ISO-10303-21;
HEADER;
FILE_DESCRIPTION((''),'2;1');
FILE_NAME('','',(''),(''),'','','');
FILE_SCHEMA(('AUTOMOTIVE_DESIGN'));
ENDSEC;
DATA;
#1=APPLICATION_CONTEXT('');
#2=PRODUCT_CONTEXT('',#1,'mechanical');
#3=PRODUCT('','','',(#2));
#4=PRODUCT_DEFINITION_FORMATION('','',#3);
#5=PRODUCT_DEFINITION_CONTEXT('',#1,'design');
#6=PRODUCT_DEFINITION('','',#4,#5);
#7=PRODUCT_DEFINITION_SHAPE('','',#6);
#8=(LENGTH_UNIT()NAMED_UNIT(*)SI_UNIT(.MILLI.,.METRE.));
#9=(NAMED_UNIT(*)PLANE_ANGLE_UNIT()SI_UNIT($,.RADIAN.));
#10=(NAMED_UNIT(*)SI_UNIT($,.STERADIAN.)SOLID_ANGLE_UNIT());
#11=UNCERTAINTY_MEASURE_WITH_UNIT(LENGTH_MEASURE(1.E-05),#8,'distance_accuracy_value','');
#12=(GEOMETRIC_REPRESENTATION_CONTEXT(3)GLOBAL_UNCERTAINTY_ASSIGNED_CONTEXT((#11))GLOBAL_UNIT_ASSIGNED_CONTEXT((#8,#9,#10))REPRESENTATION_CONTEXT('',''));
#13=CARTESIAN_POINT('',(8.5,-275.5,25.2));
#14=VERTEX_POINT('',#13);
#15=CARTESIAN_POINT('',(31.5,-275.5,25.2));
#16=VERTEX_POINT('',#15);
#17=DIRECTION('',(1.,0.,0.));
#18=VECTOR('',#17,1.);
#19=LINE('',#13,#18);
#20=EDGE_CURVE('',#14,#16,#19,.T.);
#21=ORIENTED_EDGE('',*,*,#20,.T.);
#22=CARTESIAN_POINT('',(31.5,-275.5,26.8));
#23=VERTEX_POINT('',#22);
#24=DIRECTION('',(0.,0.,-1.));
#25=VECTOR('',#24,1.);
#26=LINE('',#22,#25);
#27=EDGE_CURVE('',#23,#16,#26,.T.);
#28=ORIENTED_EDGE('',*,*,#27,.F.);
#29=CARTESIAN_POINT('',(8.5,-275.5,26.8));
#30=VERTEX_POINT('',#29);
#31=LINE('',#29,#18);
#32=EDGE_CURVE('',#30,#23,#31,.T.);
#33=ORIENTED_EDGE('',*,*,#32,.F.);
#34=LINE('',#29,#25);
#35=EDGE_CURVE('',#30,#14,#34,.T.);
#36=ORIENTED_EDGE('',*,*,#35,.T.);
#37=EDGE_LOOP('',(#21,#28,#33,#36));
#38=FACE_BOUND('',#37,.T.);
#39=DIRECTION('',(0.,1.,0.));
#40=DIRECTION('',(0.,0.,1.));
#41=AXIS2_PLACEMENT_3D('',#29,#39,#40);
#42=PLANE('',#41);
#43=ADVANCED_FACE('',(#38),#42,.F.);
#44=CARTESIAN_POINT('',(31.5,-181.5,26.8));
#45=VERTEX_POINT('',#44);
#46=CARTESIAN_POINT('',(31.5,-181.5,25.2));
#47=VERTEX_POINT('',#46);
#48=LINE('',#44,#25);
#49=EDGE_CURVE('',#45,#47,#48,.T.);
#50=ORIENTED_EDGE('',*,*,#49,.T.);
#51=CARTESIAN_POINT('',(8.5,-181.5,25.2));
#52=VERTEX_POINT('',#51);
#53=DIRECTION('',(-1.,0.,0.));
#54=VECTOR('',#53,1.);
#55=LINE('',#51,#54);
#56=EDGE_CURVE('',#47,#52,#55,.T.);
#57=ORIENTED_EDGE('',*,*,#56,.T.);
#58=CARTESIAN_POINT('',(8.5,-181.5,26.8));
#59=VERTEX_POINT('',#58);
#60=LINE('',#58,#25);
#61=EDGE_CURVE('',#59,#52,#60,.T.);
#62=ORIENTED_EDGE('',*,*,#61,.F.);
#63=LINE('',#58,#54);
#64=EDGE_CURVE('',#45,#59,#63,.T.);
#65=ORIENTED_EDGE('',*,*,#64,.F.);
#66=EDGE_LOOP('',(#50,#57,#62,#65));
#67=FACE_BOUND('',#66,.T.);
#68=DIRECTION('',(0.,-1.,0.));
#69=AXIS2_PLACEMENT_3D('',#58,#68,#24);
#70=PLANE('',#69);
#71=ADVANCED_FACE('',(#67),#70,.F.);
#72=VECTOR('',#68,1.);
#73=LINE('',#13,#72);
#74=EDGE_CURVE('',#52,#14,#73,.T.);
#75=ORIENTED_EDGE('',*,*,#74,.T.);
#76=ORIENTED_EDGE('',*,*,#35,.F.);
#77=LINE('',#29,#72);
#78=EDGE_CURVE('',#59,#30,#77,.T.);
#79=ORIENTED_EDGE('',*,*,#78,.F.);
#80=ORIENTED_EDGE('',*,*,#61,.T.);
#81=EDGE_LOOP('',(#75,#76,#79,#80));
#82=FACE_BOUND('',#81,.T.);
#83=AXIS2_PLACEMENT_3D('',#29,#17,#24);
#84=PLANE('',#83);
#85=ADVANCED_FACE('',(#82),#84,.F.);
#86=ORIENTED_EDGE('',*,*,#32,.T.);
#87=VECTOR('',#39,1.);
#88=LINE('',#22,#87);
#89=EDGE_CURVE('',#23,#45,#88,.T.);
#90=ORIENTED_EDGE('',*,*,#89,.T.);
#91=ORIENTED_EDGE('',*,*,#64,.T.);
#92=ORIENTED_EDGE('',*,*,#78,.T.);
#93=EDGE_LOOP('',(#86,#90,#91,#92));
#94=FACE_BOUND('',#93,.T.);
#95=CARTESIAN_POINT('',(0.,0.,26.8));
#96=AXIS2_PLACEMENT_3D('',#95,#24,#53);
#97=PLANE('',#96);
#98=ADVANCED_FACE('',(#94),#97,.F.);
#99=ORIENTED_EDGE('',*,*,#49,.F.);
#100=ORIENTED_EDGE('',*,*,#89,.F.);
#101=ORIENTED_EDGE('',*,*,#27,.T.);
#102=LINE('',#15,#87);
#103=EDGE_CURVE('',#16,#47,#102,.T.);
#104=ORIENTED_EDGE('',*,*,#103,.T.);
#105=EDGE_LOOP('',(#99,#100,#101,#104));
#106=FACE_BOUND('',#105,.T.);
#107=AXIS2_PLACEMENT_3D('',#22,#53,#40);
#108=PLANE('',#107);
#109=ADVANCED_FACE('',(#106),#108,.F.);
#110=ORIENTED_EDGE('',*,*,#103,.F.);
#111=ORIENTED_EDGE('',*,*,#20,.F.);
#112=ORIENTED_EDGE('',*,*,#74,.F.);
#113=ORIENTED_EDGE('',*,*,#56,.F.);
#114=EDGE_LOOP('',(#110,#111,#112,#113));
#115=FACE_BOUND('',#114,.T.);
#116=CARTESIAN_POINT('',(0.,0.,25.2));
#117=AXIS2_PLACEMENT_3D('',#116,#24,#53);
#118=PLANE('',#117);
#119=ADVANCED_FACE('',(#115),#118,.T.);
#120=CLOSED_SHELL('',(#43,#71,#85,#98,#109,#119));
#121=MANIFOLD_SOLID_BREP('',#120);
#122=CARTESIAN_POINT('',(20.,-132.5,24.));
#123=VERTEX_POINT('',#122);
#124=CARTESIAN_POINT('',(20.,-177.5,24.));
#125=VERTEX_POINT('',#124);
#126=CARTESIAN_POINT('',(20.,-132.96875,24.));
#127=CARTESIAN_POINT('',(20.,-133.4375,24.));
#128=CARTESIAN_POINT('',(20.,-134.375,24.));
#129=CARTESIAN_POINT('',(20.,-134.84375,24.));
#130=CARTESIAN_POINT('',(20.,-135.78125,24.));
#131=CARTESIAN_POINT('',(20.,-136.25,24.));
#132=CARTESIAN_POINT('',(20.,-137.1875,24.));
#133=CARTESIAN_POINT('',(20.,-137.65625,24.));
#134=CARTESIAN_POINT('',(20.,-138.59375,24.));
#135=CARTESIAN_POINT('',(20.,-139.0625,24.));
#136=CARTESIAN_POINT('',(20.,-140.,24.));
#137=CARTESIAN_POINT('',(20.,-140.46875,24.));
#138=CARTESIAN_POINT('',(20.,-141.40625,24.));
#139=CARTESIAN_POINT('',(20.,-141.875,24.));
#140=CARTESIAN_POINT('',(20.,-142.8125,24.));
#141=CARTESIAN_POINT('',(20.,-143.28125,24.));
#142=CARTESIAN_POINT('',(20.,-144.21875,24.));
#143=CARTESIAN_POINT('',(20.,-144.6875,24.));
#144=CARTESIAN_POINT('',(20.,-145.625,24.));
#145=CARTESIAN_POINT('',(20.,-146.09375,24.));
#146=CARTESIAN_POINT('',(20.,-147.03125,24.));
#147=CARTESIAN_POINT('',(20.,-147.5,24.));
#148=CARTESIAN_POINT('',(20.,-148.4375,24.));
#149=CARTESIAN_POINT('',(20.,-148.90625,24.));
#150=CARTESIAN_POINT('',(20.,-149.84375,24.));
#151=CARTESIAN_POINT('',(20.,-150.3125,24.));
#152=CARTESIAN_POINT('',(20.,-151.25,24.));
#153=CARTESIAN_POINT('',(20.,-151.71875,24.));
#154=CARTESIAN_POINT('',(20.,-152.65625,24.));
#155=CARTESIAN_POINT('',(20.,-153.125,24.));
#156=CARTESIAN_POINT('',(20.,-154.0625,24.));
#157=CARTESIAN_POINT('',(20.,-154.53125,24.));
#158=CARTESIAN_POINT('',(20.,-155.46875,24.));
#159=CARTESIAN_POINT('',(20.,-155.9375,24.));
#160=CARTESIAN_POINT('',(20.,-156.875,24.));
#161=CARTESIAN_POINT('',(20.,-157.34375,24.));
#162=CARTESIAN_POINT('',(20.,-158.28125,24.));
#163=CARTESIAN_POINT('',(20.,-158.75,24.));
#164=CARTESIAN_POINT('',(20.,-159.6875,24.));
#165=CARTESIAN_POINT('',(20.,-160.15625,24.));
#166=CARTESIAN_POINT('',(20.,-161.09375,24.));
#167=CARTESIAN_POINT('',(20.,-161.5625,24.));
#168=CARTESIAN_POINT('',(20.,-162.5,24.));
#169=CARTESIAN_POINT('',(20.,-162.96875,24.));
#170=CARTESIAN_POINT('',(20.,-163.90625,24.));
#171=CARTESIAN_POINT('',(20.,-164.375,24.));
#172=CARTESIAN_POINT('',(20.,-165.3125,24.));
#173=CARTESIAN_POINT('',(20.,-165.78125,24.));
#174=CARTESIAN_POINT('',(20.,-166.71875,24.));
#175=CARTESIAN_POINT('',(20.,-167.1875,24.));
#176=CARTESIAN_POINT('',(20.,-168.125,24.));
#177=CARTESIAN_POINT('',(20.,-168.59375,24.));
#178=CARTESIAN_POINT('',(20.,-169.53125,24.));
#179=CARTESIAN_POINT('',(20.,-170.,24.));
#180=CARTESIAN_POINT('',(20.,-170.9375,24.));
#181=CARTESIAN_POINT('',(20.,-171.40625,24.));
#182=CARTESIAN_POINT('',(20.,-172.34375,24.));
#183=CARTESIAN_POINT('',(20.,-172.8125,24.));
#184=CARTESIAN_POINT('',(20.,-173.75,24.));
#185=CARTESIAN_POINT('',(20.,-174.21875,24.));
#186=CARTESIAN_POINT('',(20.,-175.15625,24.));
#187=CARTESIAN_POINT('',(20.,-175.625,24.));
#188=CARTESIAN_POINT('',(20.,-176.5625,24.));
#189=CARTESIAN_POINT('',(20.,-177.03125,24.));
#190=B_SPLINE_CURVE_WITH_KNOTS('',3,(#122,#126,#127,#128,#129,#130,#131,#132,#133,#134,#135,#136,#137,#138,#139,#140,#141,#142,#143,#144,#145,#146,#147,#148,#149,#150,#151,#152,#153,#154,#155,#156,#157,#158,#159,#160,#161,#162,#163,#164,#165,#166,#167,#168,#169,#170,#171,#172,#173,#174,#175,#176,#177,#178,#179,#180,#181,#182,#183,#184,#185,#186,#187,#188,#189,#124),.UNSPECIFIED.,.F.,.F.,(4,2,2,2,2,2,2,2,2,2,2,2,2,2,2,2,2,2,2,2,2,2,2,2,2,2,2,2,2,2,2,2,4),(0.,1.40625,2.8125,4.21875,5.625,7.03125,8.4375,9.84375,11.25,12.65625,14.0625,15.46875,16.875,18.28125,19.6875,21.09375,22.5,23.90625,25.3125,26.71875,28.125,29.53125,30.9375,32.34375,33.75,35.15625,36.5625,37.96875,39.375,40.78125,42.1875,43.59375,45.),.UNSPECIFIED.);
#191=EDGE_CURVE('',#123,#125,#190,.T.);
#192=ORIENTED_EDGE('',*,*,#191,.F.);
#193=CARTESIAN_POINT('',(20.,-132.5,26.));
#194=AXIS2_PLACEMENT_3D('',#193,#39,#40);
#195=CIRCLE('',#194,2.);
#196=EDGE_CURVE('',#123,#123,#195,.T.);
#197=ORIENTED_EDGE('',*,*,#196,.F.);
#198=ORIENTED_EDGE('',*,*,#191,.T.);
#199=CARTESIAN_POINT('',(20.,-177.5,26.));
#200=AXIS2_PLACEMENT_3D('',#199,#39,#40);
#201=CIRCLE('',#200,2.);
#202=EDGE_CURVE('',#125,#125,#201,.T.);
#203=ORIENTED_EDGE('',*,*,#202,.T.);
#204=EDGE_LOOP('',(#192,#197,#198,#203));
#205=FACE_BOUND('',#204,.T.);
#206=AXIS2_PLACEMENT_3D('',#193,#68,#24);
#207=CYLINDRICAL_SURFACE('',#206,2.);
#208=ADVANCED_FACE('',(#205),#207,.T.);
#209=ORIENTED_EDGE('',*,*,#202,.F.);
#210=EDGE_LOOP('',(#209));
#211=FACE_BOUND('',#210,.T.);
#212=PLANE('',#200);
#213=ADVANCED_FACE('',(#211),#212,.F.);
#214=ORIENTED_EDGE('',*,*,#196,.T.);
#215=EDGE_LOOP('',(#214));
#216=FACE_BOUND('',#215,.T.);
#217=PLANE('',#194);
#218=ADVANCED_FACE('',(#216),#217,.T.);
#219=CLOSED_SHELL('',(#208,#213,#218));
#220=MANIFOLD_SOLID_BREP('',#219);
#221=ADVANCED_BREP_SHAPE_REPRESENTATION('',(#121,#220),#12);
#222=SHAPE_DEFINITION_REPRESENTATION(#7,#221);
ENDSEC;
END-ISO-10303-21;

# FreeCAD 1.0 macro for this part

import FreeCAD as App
import Part
import Sketcher
from FreeCAD import Vector

doc = App.newDocument("Part")
body = doc.addObject("PartDesign::Body", "Body")

# Sketch on XY plane
sketch1 = body.newObject("Sketcher::SketchObject", "Sketch")
sketch1.AttachmentSupport = (doc.getObject("XY_Plane"), [""])
sketch1.MapMode = "FlatFace"
sketch1.AttachmentOffset = App.Placement(Vector(0, 0, 25.2), App.Rotation())
sketch1.addGeometry([
    Part.LineSegment(Vector(8, -182, 0), Vector(8, -276, 0)),
    Part.LineSegment(Vector(8, -276, 0), Vector(32, -276, 0)),
    Part.LineSegment(Vector(32, -276, 0), Vector(32, -182, 0)),
    Part.LineSegment(Vector(32, -182, 0), Vector(8, -182, 0)),
], False)
sketch1.addConstraint([
    Sketcher.Constraint("Coincident", 0, 2, 1, 1),
    Sketcher.Constraint("Coincident", 1, 2, 2, 1),
    Sketcher.Constraint("Coincident", 2, 2, 3, 1),
    Sketcher.Constraint("Coincident", 3, 2, 0, 1),
    Sketcher.Constraint("Vertical", 0),
    Sketcher.Constraint("Horizontal", 1),
    Sketcher.Constraint("Vertical", 2),
    Sketcher.Constraint("Horizontal", 3),
    Sketcher.Constraint("DistanceX", 1, 1, 1, 2, 23.0),
    Sketcher.Constraint("DistanceY", 0, 2, 0, 1, 94.0),
    Sketcher.Constraint("DistanceX", -1, 1, 0, 2, 8.5),
    Sketcher.Constraint("DistanceY", 0, 2, -1, 1, 275.5),
])
pad1 = body.newObject("PartDesign::Pad", "Pad")
pad1.Profile = sketch1
pad1.Length = 1.6
body2 = doc.addObject("PartDesign::Body", "Body001")

# Sketch on XZ plane
sketch2 = body2.newObject("Sketcher::SketchObject", "Sketch001")
sketch2.AttachmentSupport = (doc.getObject("XZ_Plane001"), [""])
sketch2.MapMode = "FlatFace"
sketch2.AttachmentOffset = App.Placement(Vector(0, 0, 177.5), App.Rotation())
sketch2.addGeometry(Part.Circle(Vector(20, 26, 0), Vector(0, 0, 1), 2), False)
sketch2.addConstraint([
    Sketcher.Constraint("Diameter", 0, 4.0),
    Sketcher.Constraint("DistanceX", -1, 1, 0, 3, 20.0),
    Sketcher.Constraint("DistanceY", -1, 1, 0, 3, 26.0),
])
pad2 = body2.newObject("PartDesign::Pad", "Pad001")
pad2.Profile = sketch2
pad2.Length = 45
pad2.Reversed = True

doc.recompute()
